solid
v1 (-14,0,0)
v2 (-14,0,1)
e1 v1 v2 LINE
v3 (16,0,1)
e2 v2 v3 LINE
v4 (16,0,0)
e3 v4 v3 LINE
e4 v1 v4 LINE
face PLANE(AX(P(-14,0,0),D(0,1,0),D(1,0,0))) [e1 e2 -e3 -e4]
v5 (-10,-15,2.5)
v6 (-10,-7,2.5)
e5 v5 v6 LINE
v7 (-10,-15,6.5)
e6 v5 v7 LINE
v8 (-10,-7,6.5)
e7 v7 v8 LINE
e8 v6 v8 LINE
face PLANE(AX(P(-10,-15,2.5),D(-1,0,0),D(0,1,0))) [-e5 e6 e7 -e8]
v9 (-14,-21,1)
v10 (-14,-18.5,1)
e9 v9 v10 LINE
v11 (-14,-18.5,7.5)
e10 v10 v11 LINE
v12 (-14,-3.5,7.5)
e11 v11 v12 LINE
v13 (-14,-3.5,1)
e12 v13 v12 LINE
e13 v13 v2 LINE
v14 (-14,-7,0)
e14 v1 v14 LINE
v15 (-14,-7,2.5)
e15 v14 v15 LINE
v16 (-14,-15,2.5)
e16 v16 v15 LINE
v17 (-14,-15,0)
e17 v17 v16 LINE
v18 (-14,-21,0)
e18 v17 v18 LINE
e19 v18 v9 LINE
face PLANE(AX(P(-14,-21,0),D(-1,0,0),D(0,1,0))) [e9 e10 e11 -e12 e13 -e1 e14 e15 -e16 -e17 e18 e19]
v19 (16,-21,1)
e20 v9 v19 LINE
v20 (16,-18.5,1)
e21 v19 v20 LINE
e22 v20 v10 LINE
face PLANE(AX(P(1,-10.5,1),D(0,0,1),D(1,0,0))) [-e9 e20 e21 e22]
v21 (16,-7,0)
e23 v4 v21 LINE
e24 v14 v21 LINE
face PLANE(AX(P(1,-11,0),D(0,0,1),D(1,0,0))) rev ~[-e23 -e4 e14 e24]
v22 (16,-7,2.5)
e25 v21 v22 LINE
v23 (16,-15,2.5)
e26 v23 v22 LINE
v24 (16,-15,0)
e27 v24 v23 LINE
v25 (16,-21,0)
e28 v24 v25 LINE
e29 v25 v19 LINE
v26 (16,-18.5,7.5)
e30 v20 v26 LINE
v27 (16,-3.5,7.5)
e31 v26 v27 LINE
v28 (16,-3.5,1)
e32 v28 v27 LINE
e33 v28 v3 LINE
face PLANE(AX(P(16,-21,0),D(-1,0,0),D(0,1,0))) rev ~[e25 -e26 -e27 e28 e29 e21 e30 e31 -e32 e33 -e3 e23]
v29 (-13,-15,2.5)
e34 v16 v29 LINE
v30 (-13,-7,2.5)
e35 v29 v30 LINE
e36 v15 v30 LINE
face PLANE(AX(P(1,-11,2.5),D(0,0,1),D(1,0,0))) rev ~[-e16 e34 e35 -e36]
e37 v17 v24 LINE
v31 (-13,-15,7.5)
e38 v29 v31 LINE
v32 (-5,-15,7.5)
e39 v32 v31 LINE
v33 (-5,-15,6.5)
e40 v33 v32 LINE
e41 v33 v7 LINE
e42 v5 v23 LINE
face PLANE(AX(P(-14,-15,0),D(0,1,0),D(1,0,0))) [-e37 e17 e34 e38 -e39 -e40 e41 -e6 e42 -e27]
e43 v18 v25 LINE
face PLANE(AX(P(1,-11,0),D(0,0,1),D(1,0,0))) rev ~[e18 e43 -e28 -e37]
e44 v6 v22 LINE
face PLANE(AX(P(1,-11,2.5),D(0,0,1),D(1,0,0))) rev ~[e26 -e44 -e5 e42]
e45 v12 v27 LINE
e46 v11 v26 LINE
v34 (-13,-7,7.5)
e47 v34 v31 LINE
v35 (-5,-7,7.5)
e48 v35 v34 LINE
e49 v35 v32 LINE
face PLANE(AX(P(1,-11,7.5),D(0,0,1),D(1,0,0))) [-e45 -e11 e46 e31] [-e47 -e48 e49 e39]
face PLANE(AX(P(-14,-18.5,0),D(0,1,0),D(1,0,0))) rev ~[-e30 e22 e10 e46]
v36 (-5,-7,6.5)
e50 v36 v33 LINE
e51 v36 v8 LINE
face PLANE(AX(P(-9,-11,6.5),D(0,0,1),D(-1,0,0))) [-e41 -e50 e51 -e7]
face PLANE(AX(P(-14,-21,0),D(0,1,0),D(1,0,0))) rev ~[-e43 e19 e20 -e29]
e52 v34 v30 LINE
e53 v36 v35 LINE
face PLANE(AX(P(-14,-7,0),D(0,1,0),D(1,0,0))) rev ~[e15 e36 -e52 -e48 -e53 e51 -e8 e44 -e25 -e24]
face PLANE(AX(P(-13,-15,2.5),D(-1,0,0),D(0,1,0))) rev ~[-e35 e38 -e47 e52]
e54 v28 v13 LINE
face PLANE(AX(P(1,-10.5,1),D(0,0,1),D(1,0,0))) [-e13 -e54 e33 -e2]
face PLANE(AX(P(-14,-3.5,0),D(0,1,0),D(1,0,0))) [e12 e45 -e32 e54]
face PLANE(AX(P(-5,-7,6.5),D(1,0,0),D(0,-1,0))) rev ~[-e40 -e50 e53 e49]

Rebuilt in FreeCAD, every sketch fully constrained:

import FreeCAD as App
import Part
import Sketcher

V = App.Vector


def edges_at(feature, points):
    """Names of the edges that pass closest to the given points."""
    edges = feature.Shape.Edges
    near = lambda p: min(range(len(edges)), key=lambda i: edges[i].distToShape(Part.Vertex(*p))[0])
    return sorted({f"Edge{near(p) + 1}" for p in points})

doc = App.newDocument("Part")
params = doc.addObject("Spreadsheet::Sheet", "Params")
for row, (alias, value) in enumerate([
    ("sketch1_width", "3 mm"),
    ("sketch1_height", "8 mm"),
    ("pad1_length", "4 mm"),
    ("sketch2_width", "8 mm"),
    ("pad2_length", "2 mm"),
    ("chamfer_size", "1 mm"),
    ("sketch3_width", "30 mm"),
    ("sketch3_height", "8 mm"),
    ("pad3_length", "2.5 mm"),
    ("sketch4_width", "30 mm"),
    ("sketch4_height", "15 mm"),
    ("pad4_length", "7.5 mm"),
    ("sketch5_width", "30 mm"),
    ("sketch5_height", "21 mm"),
    ("pad5_length", "1 mm"),
], start=1):
    params.set(f"A{row}", alias)
    params.set(f"B{row}", "=" + value)
    params.setAlias(f"B{row}", alias)

body = doc.addObject("PartDesign::Body", "Body")

# Sketch on XY plane
sketch1 = body.newObject("Sketcher::SketchObject", "Sketch")
sketch1.AttachmentSupport = (doc.getObject("XY_Plane"), [""])
sketch1.MapMode = "FlatFace"
sketch1.AttachmentOffset = App.Placement(V(0, 0, 2.5), App.Rotation())
sketch1.addGeometry([
    Part.LineSegment(V(-13, -7, 0), V(-13, -15, 0)),
    Part.LineSegment(V(-13, -15, 0), V(-10, -15, 0)),
    Part.LineSegment(V(-10, -15, 0), V(-10, -7, 0)),
    Part.LineSegment(V(-10, -7, 0), V(-13, -7, 0)),
], False)
sketch1.addConstraint([
    Sketcher.Constraint("Coincident", 0, 2, 1, 1),
    Sketcher.Constraint("Coincident", 1, 2, 2, 1),
    Sketcher.Constraint("Coincident", 2, 2, 3, 1),
    Sketcher.Constraint("Coincident", 3, 2, 0, 1),
    Sketcher.Constraint("Vertical", 0),
    Sketcher.Constraint("Horizontal", 1),
    Sketcher.Constraint("Vertical", 2),
    Sketcher.Constraint("Horizontal", 3),
    Sketcher.Constraint("DistanceX", 1, 1, 1, 2, 3.0),
    Sketcher.Constraint("DistanceY", 0, 2, 0, 1, 8.0),
    Sketcher.Constraint("DistanceX", 0, 2, -1, 1, 13.0),
    Sketcher.Constraint("DistanceY", 0, 2, -1, 1, 15.0),
])
sketch1.setExpression("Constraints[8]", "Params.sketch1_width")
sketch1.setExpression("Constraints[9]", "Params.sketch1_height")
pad1 = body.newObject("PartDesign::Pad", "Pad")
pad1.Profile = sketch1
pad1.setExpression("Length", "Params.pad1_length")
body2 = doc.addObject("PartDesign::Body", "Body001")

# Sketch on XY plane
sketch2 = body2.newObject("Sketcher::SketchObject", "Sketch001")
sketch2.AttachmentSupport = (doc.getObject("XY_Plane001"), [""])
sketch2.MapMode = "FlatFace"
sketch2.AttachmentOffset = App.Placement(V(0, 0, 6), App.Rotation())
sketch2.addGeometry([
    Part.LineSegment(V(-13, -7, 0), V(-13, -15, 0)),
    Part.LineSegment(V(-13, -15, 0), V(-5, -15, 0)),
    Part.LineSegment(V(-5, -15, 0), V(-5, -7, 0)),
    Part.LineSegment(V(-5, -7, 0), V(-13, -7, 0)),
], False)
sketch2.addConstraint([
    Sketcher.Constraint("Coincident", 0, 2, 1, 1),
    Sketcher.Constraint("Coincident", 1, 2, 2, 1),
    Sketcher.Constraint("Coincident", 2, 2, 3, 1),
    Sketcher.Constraint("Coincident", 3, 2, 0, 1),
    Sketcher.Constraint("Vertical", 0),
    Sketcher.Constraint("Horizontal", 1),
    Sketcher.Constraint("Vertical", 2),
    Sketcher.Constraint("Horizontal", 3),
    Sketcher.Constraint("Equal", 3, 0),
    Sketcher.Constraint("DistanceX", 1, 1, 1, 2, 8.0),
    Sketcher.Constraint("DistanceX", 0, 2, -1, 1, 13.0),
    Sketcher.Constraint("DistanceY", 0, 2, -1, 1, 15.0),
])
sketch2.setExpression("Constraints[9]", "Params.sketch2_width")
pad2 = body2.newObject("PartDesign::Pad", "Pad001")
pad2.Profile = sketch2
pad2.setExpression("Length", "Params.pad2_length")
doc.recompute()

chamfer = body2.newObject("PartDesign::Chamfer", "Chamfer")
chamfer.Base = (pad2, edges_at(pad2, [(-13, -11, 8)]))
chamfer.setExpression("Size", "Params.chamfer_size")
body3 = doc.addObject("PartDesign::Body", "Body002")
doc.recompute()

body2.Placement = App.Placement(V(-18, -22, 0.5), App.Rotation(V(0, 0, 1), 180))
boolean = body3.newObject("PartDesign::Boolean", "Boolean")
boolean.Type = "Fuse"
boolean.addObjects([body2])
doc.recompute()

boolean2 = body3.newObject("PartDesign::Boolean", "Boolean001")
boolean2.Type = "Fuse"
boolean2.addObjects([body])
body4 = doc.addObject("PartDesign::Body", "Body003")

# Sketch on XY plane
sketch3 = body4.newObject("Sketcher::SketchObject", "Sketch002")
sketch3.AttachmentSupport = (doc.getObject("XY_Plane003"), [""])
sketch3.MapMode = "FlatFace"
sketch3.addGeometry([
    Part.LineSegment(V(-14, -7, 0), V(-14, -15, 0)),
    Part.LineSegment(V(-14, -15, 0), V(16, -15, 0)),
    Part.LineSegment(V(16, -15, 0), V(16, -7, 0)),
    Part.LineSegment(V(16, -7, 0), V(-14, -7, 0)),
], False)
sketch3.addConstraint([
    Sketcher.Constraint("Coincident", 0, 2, 1, 1),
    Sketcher.Constraint("Coincident", 1, 2, 2, 1),
    Sketcher.Constraint("Coincident", 2, 2, 3, 1),
    Sketcher.Constraint("Coincident", 3, 2, 0, 1),
    Sketcher.Constraint("Vertical", 0),
    Sketcher.Constraint("Horizontal", 1),
    Sketcher.Constraint("Vertical", 2),
    Sketcher.Constraint("Horizontal", 3),
    Sketcher.Constraint("DistanceX", 1, 1, 1, 2, 30.0),
    Sketcher.Constraint("DistanceY", 0, 2, 0, 1, 8.0),
    Sketcher.Constraint("DistanceX", 0, 2, -1, 1, 14.0),
    Sketcher.Constraint("DistanceY", 0, 2, -1, 1, 15.0),
])
sketch3.setExpression("Constraints[8]", "Params.sketch3_width")
sketch3.setExpression("Constraints[9]", "Params.sketch3_height")
pad3 = body4.newObject("PartDesign::Pad", "Pad002")
pad3.Profile = sketch3
pad3.setExpression("Length", "Params.pad3_length")
body5 = doc.addObject("PartDesign::Body", "Body004")

# Sketch on XY plane
sketch4 = body5.newObject("Sketcher::SketchObject", "Sketch003")
sketch4.AttachmentSupport = (doc.getObject("XY_Plane004"), [""])
sketch4.MapMode = "FlatFace"
sketch4.addGeometry([
    Part.LineSegment(V(-14, -3.5, 0), V(-14, -18.5, 0)),
    Part.LineSegment(V(-14, -18.5, 0), V(16, -18.5, 0)),
    Part.LineSegment(V(16, -18.5, 0), V(16, -3.5, 0)),
    Part.LineSegment(V(16, -3.5, 0), V(-14, -3.5, 0)),
], False)
sketch4.addConstraint([
    Sketcher.Constraint("Coincident", 0, 2, 1, 1),
    Sketcher.Constraint("Coincident", 1, 2, 2, 1),
    Sketcher.Constraint("Coincident", 2, 2, 3, 1),
    Sketcher.Constraint("Coincident", 3, 2, 0, 1),
    Sketcher.Constraint("Vertical", 0),
    Sketcher.Constraint("Horizontal", 1),
    Sketcher.Constraint("Vertical", 2),
    Sketcher.Constraint("Horizontal", 3),
    Sketcher.Constraint("DistanceX", 1, 1, 1, 2, 30.0),
    Sketcher.Constraint("DistanceY", 0, 2, 0, 1, 15.0),
    Sketcher.Constraint("DistanceX", 0, 2, -1, 1, 14.0),
    Sketcher.Constraint("DistanceY", 0, 2, -1, 1, 18.5),
])
sketch4.setExpression("Constraints[8]", "Params.sketch4_width")
sketch4.setExpression("Constraints[9]", "Params.sketch4_height")
pad4 = body5.newObject("PartDesign::Pad", "Pad003")
pad4.Profile = sketch4
pad4.setExpression("Length", "Params.pad4_length")
body6 = doc.addObject("PartDesign::Body", "Body005")

# Sketch on XY plane
sketch5 = body6.newObject("Sketcher::SketchObject", "Sketch004")
sketch5.AttachmentSupport = (doc.getObject("XY_Plane005"), [""])
sketch5.MapMode = "FlatFace"
sketch5.addGeometry([
    Part.LineSegment(V(-14, 0, 0), V(-14, -21, 0)),
    Part.LineSegment(V(-14, -21, 0), V(16, -21, 0)),
    Part.LineSegment(V(16, -21, 0), V(16, 0, 0)),
    Part.LineSegment(V(16, 0, 0), V(-14, 0, 0)),
], False)
sketch5.addConstraint([
    Sketcher.Constraint("Coincident", 0, 2, 1, 1),
    Sketcher.Constraint("Coincident", 1, 2, 2, 1),
    Sketcher.Constraint("Coincident", 2, 2, 3, 1),
    Sketcher.Constraint("Coincident", 3, 2, 0, 1),
    Sketcher.Constraint("Vertical", 0),
    Sketcher.Constraint("Horizontal", 1),
    Sketcher.Constraint("Vertical", 2),
    Sketcher.Constraint("Horizontal", 3),
    Sketcher.Constraint("PointOnObject", 2, 2, -1),
    Sketcher.Constraint("DistanceX", 1, 1, 1, 2, 30.0),
    Sketcher.Constraint("DistanceY", 0, 2, 0, 1, 21.0),
    Sketcher.Constraint("DistanceX", 0, 2, -1, 1, 14.0),
])
sketch5.setExpression("Constraints[9]", "Params.sketch5_width")
sketch5.setExpression("Constraints[10]", "Params.sketch5_height")
pad5 = body6.newObject("PartDesign::Pad", "Pad004")
pad5.Profile = sketch5
pad5.setExpression("Length", "Params.pad5_length")
doc.recompute()

boolean3 = body6.newObject("PartDesign::Boolean", "Boolean002")
boolean3.Type = "Fuse"
boolean3.addObjects([body5])
doc.recompute()

boolean4 = body6.newObject("PartDesign::Boolean", "Boolean003")
boolean4.Type = "Cut"
boolean4.addObjects([body4])
doc.recompute()

boolean5 = body6.newObject("PartDesign::Boolean", "Boolean004")
boolean5.Type = "Cut"
boolean5.addObjects([body3])

doc.recompute()
